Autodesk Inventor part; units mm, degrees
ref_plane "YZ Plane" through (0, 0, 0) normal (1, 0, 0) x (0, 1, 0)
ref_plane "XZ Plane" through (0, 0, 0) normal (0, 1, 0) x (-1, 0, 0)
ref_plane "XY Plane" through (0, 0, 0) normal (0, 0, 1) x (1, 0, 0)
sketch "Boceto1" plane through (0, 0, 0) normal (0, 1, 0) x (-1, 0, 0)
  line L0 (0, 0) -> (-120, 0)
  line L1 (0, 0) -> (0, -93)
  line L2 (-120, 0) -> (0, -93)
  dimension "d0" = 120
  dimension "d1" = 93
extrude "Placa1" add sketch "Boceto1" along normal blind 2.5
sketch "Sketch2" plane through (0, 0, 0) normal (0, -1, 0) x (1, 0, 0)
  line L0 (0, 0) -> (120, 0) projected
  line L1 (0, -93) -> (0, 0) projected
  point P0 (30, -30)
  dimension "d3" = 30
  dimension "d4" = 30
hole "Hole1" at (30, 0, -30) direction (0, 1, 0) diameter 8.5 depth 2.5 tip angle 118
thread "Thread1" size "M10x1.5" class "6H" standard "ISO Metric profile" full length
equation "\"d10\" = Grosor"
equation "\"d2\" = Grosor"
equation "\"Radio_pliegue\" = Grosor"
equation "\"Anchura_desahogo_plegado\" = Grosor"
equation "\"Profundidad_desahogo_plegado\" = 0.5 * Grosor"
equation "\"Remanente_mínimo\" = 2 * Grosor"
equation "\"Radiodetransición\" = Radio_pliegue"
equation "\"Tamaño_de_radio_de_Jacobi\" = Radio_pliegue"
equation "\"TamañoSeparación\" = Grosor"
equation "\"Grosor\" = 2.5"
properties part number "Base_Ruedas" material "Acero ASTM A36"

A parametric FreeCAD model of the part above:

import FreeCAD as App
import Part
import Sketcher
from FreeCAD import Vector


def add_polygon(sketch, points):
    """Adds a closed chain of lines whose ends are joined by coincident constraints."""
    first, n = sketch.GeometryCount, len(points)
    for a, b in zip(points, points[1:] + points[:1]):
        sketch.addGeometry(Part.LineSegment(App.Vector(*a, 0), App.Vector(*b, 0)), False)
    for i in range(n):
        sketch.addConstraint(Sketcher.Constraint("Coincident", first + i, 2, first + (i + 1) % n, 1))

doc = App.newDocument("Part")
body = doc.addObject("PartDesign::Body", "Body")

# Sketch on XZ plane
sketch1 = body.newObject("Sketcher::SketchObject", "Sketch")
sketch1.AttachmentSupport = (doc.getObject("XZ_Plane"), [""])
sketch1.MapMode = "FlatFace"
add_polygon(sketch1, [(0, -93), (0, 0), (120, 0)])  # lines 0-2
sketch1.addConstraint(Sketcher.Constraint("Vertical", 0))
sketch1.addConstraint(Sketcher.Constraint("Horizontal", 1))
sketch1.addConstraint(Sketcher.Constraint("Coincident", 0, 2, -1, 1))
sketch1.addConstraint(Sketcher.Constraint("DistanceX", 1, 1, 1, 2, 120.0))
sketch1.addConstraint(Sketcher.Constraint("DistanceY", 0, 1, 0, 2, 93.0))
pad1 = body.newObject("PartDesign::Pad", "Pad")
pad1.Profile = sketch1
pad1.Length = 2.5
pad1.Reversed = True

# Sketch on XZ plane
sketch2 = body.newObject("Sketcher::SketchObject", "Sketch001")
sketch2.AttachmentSupport = (doc.getObject("XZ_Plane"), [""])
sketch2.MapMode = "FlatFace"
sketch2.addGeometry(Part.Circle(Vector(30, -30, 0), Vector(0, 0, 1), 4.2), False)
sketch2.addConstraint(Sketcher.Constraint("Diameter", 0, 8.5))
sketch2.addConstraint(Sketcher.Constraint("DistanceX", -1, 1, 0, 3, 30.0))
sketch2.addConstraint(Sketcher.Constraint("DistanceY", 0, 3, -1, 1, 30.0))
doc.recompute()
hole = body.newObject("PartDesign::Hole", "Hole")
hole.Profile = sketch2
hole.ThreadType = "None"
hole.Diameter = 8.5
hole.DepthType = "Dimension"
hole.Depth = 2.5
hole.DrillPoint = "Angled"
hole.DrillPointAngle = 118

doc.recompute()
